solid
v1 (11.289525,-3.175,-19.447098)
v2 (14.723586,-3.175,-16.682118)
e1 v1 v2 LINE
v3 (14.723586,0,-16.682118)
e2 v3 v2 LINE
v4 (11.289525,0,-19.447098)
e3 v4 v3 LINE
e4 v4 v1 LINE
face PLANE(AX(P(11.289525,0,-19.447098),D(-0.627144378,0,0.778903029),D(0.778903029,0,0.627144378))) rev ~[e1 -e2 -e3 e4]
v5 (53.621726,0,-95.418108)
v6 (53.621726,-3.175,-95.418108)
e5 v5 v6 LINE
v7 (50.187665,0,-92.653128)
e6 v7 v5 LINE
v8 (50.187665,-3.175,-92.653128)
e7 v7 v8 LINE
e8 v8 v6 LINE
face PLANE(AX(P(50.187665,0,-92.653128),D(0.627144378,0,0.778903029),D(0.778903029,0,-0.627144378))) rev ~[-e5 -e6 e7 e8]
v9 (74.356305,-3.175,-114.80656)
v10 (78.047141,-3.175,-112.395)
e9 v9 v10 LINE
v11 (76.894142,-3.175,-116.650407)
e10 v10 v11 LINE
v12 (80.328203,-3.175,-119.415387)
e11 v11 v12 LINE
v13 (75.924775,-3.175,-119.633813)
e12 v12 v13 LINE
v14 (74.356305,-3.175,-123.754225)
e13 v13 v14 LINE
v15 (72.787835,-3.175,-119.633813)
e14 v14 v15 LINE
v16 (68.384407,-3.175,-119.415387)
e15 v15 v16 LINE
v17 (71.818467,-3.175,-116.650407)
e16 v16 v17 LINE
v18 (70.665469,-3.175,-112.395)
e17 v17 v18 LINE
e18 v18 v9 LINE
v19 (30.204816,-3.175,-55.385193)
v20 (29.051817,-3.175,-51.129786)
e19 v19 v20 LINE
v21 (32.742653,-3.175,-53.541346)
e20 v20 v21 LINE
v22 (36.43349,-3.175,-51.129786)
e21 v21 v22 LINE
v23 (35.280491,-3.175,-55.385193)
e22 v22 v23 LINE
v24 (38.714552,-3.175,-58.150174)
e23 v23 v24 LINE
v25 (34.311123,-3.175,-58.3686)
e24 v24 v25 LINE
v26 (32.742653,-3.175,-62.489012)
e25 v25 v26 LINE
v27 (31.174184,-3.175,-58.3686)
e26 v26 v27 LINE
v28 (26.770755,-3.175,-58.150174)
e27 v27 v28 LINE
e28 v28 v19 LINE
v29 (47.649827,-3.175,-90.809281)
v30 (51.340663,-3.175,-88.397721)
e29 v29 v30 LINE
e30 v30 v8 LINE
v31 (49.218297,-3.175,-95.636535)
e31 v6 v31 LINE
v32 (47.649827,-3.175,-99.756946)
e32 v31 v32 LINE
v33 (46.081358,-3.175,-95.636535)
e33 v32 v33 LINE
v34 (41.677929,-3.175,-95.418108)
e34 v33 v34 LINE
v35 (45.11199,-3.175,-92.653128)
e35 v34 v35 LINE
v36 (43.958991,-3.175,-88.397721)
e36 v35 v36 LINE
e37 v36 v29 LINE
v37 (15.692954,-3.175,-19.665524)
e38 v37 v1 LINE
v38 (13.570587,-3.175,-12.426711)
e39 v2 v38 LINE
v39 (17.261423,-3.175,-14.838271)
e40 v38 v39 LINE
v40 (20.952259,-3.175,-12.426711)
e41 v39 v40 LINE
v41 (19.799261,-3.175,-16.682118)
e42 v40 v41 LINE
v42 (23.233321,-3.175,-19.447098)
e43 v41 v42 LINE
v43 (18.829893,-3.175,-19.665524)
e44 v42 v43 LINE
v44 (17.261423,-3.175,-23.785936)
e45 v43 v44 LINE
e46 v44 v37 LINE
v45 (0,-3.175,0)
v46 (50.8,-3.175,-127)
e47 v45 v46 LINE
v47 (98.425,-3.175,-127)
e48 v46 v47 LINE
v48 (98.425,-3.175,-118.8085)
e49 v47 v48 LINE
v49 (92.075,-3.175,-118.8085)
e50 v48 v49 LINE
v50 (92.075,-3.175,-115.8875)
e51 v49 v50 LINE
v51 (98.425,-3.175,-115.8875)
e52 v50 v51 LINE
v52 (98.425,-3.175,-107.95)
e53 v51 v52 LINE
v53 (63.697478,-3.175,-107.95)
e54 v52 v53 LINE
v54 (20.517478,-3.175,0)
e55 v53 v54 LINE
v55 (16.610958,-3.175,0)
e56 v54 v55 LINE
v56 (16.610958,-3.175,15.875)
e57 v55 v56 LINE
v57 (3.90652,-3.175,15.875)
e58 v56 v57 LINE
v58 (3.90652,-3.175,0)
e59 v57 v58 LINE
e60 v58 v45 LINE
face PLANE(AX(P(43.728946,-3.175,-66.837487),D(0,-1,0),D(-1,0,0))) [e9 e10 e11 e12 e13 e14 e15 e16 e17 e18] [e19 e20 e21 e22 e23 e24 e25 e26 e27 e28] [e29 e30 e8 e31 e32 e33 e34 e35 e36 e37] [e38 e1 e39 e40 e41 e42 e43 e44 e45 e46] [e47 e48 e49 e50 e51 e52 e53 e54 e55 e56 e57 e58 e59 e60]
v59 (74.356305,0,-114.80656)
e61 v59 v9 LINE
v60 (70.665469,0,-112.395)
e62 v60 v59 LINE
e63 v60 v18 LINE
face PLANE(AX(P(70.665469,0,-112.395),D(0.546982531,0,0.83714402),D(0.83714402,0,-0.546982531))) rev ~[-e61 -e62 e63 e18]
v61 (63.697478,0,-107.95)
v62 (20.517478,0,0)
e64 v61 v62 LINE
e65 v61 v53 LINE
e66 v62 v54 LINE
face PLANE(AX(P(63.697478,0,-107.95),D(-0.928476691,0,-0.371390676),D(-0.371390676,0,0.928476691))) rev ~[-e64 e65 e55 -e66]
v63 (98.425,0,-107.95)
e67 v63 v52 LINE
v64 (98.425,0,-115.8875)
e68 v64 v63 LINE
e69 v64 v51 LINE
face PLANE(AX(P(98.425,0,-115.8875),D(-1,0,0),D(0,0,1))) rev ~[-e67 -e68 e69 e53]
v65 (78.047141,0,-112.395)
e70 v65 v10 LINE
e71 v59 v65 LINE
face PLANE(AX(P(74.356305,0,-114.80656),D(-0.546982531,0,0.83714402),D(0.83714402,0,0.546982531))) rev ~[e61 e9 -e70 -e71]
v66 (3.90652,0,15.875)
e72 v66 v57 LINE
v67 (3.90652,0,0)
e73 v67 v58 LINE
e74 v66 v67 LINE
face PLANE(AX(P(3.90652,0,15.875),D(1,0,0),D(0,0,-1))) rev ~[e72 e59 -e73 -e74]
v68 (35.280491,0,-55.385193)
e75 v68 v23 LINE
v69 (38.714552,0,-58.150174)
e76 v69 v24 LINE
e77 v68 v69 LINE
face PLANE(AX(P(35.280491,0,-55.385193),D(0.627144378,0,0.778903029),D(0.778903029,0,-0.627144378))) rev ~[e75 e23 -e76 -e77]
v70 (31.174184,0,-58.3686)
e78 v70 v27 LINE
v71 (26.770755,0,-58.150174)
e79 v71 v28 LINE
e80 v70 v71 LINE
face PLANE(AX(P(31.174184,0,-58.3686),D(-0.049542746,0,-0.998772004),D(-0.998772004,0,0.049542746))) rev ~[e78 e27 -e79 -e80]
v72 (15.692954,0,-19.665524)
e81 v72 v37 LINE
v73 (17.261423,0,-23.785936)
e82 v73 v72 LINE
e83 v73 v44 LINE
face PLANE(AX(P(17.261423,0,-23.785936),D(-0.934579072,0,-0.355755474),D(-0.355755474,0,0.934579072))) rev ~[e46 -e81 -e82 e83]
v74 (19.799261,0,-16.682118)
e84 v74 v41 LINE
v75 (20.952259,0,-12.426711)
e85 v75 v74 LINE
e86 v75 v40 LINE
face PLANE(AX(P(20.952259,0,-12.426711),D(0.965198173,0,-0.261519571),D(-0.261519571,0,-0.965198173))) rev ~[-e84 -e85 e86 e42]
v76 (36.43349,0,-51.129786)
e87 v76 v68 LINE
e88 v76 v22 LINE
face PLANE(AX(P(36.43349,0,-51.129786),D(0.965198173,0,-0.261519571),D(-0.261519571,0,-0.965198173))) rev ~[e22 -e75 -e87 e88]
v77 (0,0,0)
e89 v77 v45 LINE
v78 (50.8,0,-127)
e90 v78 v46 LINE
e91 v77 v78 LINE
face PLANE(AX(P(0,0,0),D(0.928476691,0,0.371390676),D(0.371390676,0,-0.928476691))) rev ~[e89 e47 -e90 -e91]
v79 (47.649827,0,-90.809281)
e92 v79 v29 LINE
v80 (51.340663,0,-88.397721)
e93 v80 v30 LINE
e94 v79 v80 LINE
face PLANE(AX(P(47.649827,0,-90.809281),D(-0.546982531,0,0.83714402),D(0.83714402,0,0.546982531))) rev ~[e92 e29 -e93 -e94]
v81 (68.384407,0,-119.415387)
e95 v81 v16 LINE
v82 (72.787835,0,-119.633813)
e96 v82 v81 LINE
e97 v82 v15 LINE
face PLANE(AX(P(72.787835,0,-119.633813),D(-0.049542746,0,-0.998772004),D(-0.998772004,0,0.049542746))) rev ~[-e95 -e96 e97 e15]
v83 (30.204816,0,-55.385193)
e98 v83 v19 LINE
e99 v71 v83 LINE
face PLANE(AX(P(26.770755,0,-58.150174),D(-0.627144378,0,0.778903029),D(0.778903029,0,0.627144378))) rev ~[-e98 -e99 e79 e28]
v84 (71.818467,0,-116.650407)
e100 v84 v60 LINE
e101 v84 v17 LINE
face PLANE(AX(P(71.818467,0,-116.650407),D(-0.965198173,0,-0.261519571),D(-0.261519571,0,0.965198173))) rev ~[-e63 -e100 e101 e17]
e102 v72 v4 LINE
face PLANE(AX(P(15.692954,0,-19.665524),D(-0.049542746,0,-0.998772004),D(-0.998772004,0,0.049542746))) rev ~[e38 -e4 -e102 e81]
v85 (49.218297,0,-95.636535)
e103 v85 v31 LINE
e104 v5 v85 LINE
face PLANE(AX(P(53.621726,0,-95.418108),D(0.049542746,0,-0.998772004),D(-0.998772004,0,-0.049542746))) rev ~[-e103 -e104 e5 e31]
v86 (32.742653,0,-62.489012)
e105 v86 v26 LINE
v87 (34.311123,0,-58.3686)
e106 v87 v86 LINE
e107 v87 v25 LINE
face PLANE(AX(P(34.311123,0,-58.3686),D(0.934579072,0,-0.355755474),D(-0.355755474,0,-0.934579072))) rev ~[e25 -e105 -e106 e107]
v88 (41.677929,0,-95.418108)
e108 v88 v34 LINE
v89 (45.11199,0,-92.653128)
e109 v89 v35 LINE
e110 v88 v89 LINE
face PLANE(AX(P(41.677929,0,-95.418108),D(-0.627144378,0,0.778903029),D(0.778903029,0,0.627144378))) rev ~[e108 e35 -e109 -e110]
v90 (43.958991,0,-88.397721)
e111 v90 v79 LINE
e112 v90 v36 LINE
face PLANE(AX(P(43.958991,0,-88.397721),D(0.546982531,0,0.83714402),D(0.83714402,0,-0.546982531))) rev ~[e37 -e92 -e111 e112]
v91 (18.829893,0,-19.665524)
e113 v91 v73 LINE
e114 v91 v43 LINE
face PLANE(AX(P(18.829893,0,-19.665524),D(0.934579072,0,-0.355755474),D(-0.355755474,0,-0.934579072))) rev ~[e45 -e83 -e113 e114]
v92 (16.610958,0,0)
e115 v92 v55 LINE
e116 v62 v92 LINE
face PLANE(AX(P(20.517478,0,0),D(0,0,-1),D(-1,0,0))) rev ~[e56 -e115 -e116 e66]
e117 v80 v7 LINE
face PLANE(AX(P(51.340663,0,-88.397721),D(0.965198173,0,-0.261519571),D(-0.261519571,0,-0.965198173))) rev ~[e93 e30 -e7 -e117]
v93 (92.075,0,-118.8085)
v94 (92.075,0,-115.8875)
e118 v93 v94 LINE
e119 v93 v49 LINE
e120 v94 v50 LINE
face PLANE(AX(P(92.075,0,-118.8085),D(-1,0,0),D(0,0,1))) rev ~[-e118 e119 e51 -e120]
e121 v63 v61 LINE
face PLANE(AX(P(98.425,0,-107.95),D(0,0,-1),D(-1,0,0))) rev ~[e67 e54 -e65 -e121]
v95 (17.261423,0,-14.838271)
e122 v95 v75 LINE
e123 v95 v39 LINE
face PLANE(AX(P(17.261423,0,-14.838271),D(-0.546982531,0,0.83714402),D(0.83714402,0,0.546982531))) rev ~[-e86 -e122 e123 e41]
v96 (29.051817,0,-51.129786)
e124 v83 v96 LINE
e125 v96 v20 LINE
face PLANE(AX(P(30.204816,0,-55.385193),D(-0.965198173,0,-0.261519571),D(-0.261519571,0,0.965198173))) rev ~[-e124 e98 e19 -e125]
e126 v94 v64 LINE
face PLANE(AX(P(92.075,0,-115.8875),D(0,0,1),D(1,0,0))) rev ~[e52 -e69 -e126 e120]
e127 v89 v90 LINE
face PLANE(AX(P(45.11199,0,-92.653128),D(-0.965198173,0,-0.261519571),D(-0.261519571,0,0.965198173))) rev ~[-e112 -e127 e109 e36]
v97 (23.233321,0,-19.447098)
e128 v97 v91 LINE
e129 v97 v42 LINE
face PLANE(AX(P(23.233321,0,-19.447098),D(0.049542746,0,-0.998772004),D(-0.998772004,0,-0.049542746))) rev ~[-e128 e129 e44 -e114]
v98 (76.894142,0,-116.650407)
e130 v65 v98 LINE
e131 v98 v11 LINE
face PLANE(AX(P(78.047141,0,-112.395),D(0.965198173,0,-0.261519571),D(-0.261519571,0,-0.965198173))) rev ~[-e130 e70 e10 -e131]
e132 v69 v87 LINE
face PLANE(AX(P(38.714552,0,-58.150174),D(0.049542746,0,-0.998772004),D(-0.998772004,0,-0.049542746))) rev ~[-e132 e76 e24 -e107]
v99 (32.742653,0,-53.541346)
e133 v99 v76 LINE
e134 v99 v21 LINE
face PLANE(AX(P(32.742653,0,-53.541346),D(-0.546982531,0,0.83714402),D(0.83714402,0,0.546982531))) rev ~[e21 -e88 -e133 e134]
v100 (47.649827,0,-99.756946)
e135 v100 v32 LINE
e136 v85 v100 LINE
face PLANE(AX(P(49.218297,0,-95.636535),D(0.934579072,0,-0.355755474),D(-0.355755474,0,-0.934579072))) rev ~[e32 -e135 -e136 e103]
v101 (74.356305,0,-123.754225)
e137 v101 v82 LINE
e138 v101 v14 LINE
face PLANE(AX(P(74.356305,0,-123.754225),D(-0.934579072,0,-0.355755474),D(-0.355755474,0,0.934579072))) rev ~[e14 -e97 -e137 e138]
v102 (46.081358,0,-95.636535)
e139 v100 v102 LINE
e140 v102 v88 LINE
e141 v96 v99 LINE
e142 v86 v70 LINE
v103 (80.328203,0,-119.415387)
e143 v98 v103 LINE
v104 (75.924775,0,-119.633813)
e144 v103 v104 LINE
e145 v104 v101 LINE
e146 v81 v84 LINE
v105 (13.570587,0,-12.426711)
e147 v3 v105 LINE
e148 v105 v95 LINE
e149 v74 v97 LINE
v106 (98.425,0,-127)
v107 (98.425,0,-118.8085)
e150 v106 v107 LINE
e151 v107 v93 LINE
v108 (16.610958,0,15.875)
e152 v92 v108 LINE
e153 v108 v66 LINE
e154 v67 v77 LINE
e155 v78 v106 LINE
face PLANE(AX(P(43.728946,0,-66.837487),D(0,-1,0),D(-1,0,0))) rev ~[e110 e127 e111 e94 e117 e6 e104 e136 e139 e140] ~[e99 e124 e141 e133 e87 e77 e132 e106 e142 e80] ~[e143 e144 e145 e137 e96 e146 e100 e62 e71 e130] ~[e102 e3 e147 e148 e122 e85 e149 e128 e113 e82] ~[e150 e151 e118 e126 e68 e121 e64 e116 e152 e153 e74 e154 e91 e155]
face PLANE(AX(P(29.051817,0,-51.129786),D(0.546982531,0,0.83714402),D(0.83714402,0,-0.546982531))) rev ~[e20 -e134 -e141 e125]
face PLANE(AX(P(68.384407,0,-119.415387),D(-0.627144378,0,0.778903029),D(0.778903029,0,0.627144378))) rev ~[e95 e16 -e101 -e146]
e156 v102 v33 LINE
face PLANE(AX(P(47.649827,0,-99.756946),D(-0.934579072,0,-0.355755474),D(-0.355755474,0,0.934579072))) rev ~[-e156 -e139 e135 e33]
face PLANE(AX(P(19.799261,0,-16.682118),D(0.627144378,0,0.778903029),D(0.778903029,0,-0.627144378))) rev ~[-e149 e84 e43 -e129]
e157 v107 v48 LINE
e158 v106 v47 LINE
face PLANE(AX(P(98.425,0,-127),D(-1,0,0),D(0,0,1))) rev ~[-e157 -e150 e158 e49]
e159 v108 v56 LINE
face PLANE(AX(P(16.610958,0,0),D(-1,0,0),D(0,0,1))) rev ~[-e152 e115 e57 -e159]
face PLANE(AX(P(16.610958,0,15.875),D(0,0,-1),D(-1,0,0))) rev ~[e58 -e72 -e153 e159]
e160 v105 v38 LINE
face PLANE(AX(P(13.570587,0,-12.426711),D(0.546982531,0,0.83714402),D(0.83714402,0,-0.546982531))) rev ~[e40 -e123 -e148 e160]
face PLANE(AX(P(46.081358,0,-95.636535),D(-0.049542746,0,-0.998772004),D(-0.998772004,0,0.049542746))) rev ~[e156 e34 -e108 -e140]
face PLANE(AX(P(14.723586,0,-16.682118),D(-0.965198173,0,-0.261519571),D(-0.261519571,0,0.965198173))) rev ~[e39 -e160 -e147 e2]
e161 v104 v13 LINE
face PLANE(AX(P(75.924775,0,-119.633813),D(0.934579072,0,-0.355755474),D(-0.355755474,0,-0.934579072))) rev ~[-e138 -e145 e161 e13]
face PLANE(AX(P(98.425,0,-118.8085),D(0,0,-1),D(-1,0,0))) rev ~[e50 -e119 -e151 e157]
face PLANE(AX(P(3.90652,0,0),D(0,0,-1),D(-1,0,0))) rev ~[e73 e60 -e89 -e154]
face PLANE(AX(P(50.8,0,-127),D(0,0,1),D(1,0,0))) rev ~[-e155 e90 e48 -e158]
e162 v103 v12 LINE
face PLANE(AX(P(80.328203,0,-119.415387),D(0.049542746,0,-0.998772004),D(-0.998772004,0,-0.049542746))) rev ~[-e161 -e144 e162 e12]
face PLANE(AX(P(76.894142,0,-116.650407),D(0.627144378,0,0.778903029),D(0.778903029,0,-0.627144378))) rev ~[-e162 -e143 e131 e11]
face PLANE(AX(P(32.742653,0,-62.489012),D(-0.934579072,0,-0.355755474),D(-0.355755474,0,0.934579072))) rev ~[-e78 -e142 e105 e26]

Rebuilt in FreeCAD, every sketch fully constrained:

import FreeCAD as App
import Part
import Sketcher
Q = App.Units.Quantity


def add_polygon(sketch, points):
    """Adds a closed chain of lines whose ends are joined by coincident constraints."""
    first, n = sketch.GeometryCount, len(points)
    for a, b in zip(points, points[1:] + points[:1]):
        sketch.addGeometry(Part.LineSegment(App.Vector(*a, 0), App.Vector(*b, 0)), False)
    for i in range(n):
        sketch.addConstraint(Sketcher.Constraint("Coincident", first + i, 2, first + (i + 1) % n, 1))

doc = App.newDocument("Part")
body = doc.addObject("PartDesign::Body", "Body")

sketch1 = body.newObject("Sketcher::SketchObject", "Sketch")
sketch1.AttachmentSupport = (doc.getObject("XZ_Plane"), [""])
sketch1.MapMode = "FlatFace"
add_polygon(sketch1, [(98.4, -118.8), (98.4, -127), (50.8, -127), (0, 0), (3.9, 0), (3.9, 15.9), (16.6, 15.9), (16.6, 0), (20.5, 0), (63.7, -108), (98.4, -108), (98.4, -115.9), (92.1, -115.9), (92.1, -118.8)])
add_polygon(sketch1, [(17.3, -23.8), (18.8, -19.7), (23.2, -19.4), (19.8, -16.7), (21, -12.4), (17.3, -14.8), (13.6, -12.4), (14.7, -16.7), (11.3, -19.4), (15.7, -19.7)])
add_polygon(sketch1, [(32.7, -62.5), (34.3, -58.4), (38.7, -58.2), (35.3, -55.4), (36.4, -51.1), (32.7, -53.5), (29.1, -51.1), (30.2, -55.4), (26.8, -58.2), (31.2, -58.4)])
add_polygon(sketch1, [(47.6, -99.8), (49.2, -95.6), (53.6, -95.4), (50.2, -92.7), (51.3, -88.4), (47.6, -90.8), (44, -88.4), (45.1, -92.7), (41.7, -95.4), (46.1, -95.6)])
add_polygon(sketch1, [(74.4, -123.8), (75.9, -119.6), (80.3, -119.4), (76.9, -116.7), (78, -112.4), (74.4, -114.8), (70.7, -112.4), (71.8, -116.7), (68.4, -119.4), (72.8, -119.6)])
sketch1.addConstraint(Sketcher.Constraint("Vertical", 0))
sketch1.addConstraint(Sketcher.Constraint("Horizontal", 1))
sketch1.addConstraint(Sketcher.Constraint("Horizontal", 3))
sketch1.addConstraint(Sketcher.Constraint("Vertical", 4))
sketch1.addConstraint(Sketcher.Constraint("Horizontal", 5))
sketch1.addConstraint(Sketcher.Constraint("Vertical", 6))
sketch1.addConstraint(Sketcher.Constraint("Horizontal", 7))
sketch1.addConstraint(Sketcher.Constraint("Horizontal", 9))
sketch1.addConstraint(Sketcher.Constraint("Vertical", 10))
sketch1.addConstraint(Sketcher.Constraint("Horizontal", 11))
sketch1.addConstraint(Sketcher.Constraint("Vertical", 12))
sketch1.addConstraint(Sketcher.Constraint("Horizontal", 13))
sketch1.addConstraint(Sketcher.Constraint("Coincident", 2, 2, -1, 1))
sketch1.addConstraint(Sketcher.Constraint("PointOnObject", 6, 2, -1))
sketch1.addConstraint(Sketcher.Constraint("Parallel", 2, 8))
sketch1.addConstraint(Sketcher.Constraint("Parallel", 14, 24))
sketch1.addConstraint(Sketcher.Constraint("Parallel", 15, 25))
sketch1.addConstraint(Sketcher.Constraint("Parallel", 16, 26))
sketch1.addConstraint(Sketcher.Constraint("Parallel", 17, 27))
sketch1.addConstraint(Sketcher.Constraint("Parallel", 18, 28))
sketch1.addConstraint(Sketcher.Constraint("Parallel", 19, 29))
sketch1.addConstraint(Sketcher.Constraint("Parallel", 20, 30))
sketch1.addConstraint(Sketcher.Constraint("Parallel", 21, 31))
sketch1.addConstraint(Sketcher.Constraint("Parallel", 22, 32))
sketch1.addConstraint(Sketcher.Constraint("Parallel", 23, 33))
sketch1.addConstraint(Sketcher.Constraint("Parallel", 24, 34))
sketch1.addConstraint(Sketcher.Constraint("Parallel", 25, 35))
sketch1.addConstraint(Sketcher.Constraint("Parallel", 26, 36))
sketch1.addConstraint(Sketcher.Constraint("Parallel", 27, 37))
sketch1.addConstraint(Sketcher.Constraint("Parallel", 28, 38))
sketch1.addConstraint(Sketcher.Constraint("Parallel", 29, 39))
sketch1.addConstraint(Sketcher.Constraint("Parallel", 30, 40))
sketch1.addConstraint(Sketcher.Constraint("Parallel", 31, 41))
sketch1.addConstraint(Sketcher.Constraint("Parallel", 32, 42))
sketch1.addConstraint(Sketcher.Constraint("Parallel", 33, 43))
sketch1.addConstraint(Sketcher.Constraint("Parallel", 34, 44))
sketch1.addConstraint(Sketcher.Constraint("Parallel", 35, 45))
sketch1.addConstraint(Sketcher.Constraint("Parallel", 36, 46))
sketch1.addConstraint(Sketcher.Constraint("Parallel", 37, 47))
sketch1.addConstraint(Sketcher.Constraint("Parallel", 38, 48))
sketch1.addConstraint(Sketcher.Constraint("Parallel", 39, 49))
sketch1.addConstraint(Sketcher.Constraint("Parallel", 40, 50))
sketch1.addConstraint(Sketcher.Constraint("Parallel", 41, 51))
sketch1.addConstraint(Sketcher.Constraint("Parallel", 42, 52))
sketch1.addConstraint(Sketcher.Constraint("Parallel", 43, 53))
sketch1.addConstraint(Sketcher.Constraint("Horizontal", 17, 2, 19, 2))
sketch1.addConstraint(Sketcher.Constraint("Horizontal", 16, 2, 20, 2))
sketch1.addConstraint(Sketcher.Constraint("Horizontal", 15, 2, 21, 2))
sketch1.addConstraint(Sketcher.Constraint("Horizontal", 14, 2, 22, 2))
sketch1.addConstraint(Sketcher.Constraint("Horizontal", 27, 2, 29, 2))
sketch1.addConstraint(Sketcher.Constraint("Horizontal", 26, 2, 30, 2))
sketch1.addConstraint(Sketcher.Constraint("Horizontal", 25, 2, 31, 2))
sketch1.addConstraint(Sketcher.Constraint("Horizontal", 24, 2, 32, 2))
sketch1.addConstraint(Sketcher.Constraint("Horizontal", 37, 2, 39, 2))
sketch1.addConstraint(Sketcher.Constraint("Horizontal", 36, 2, 40, 2))
sketch1.addConstraint(Sketcher.Constraint("Horizontal", 35, 2, 41, 2))
sketch1.addConstraint(Sketcher.Constraint("Horizontal", 34, 2, 42, 2))
sketch1.addConstraint(Sketcher.Constraint("Horizontal", 47, 2, 49, 2))
sketch1.addConstraint(Sketcher.Constraint("Horizontal", 46, 2, 50, 2))
sketch1.addConstraint(Sketcher.Constraint("Horizontal", 45, 2, 51, 2))
sketch1.addConstraint(Sketcher.Constraint("Horizontal", 44, 2, 52, 2))
sketch1.addConstraint(Sketcher.Constraint("Vertical", 0, 2, 9, 2))
sketch1.addConstraint(Sketcher.Constraint("Vertical", 18, 2, 23, 2))
sketch1.addConstraint(Sketcher.Constraint("Equal", 3, 7))
sketch1.addConstraint(Sketcher.Constraint("Equal", 14, 15))
sketch1.addConstraint(Sketcher.Constraint("Equal", 15, 16))
sketch1.addConstraint(Sketcher.Constraint("Equal", 16, 17))
sketch1.addConstraint(Sketcher.Constraint("Equal", 17, 18))
sketch1.addConstraint(Sketcher.Constraint("Equal", 18, 19))
sketch1.addConstraint(Sketcher.Constraint("Equal", 19, 20))
sketch1.addConstraint(Sketcher.Constraint("Equal", 20, 21))
sketch1.addConstraint(Sketcher.Constraint("Equal", 21, 22))
sketch1.addConstraint(Sketcher.Constraint("Equal", 23, 24))
sketch1.addConstraint(Sketcher.Constraint("Equal", 24, 25))
sketch1.addConstraint(Sketcher.Constraint("Equal", 25, 26))
sketch1.addConstraint(Sketcher.Constraint("Equal", 26, 27))
sketch1.addConstraint(Sketcher.Constraint("Equal", 33, 34))
sketch1.addConstraint(Sketcher.Constraint("Equal", 34, 35))
sketch1.addConstraint(Sketcher.Constraint("Equal", 35, 36))
sketch1.addConstraint(Sketcher.Constraint("Equal", 36, 37))
sketch1.addConstraint(Sketcher.Constraint("Equal", 43, 44))
sketch1.addConstraint(Sketcher.Constraint("Equal", 44, 45))
sketch1.addConstraint(Sketcher.Constraint("Equal", 45, 46))
sketch1.addConstraint(Sketcher.Constraint("Equal", 46, 47))
sketch1.addConstraint(Sketcher.Constraint("DistanceY", 0, 2, -1, 1, Q("5 in")))
sketch1.addConstraint(Sketcher.Constraint("DistanceX", -1, 1, 1, 2, Q("2 in")))
sketch1.addConstraint(Sketcher.Constraint("DistanceX", 11, 2, 11, 1, Q("0.25 in")))
sketch1.addConstraint(Sketcher.Constraint("DistanceX", 7, 2, 8, 2, Q("1.7 in")))
sketch1.addConstraint(Sketcher.Constraint("DistanceX", 1, 2, 1, 1, Q("1.875 in")))
sketch1.addConstraint(Sketcher.Constraint("DistanceY", 4, 1, 4, 2, Q("0.625 in")))
sketch1.addConstraint(Sketcher.Constraint("DistanceY", 10, 2, 10, 1, Q("0.3125 in")))
sketch1.addConstraint(Sketcher.Constraint("DistanceY", 12, 2, 12, 1, Q("0.115 in")))
sketch1.addConstraint(Sketcher.Constraint("DistanceX", 3, 1, 3, 2, Q("0.1538 in")))
sketch1.addConstraint(Sketcher.Constraint("DistanceY", 47, 2, -1, 1, Q("4.425 in")))
sketch1.addConstraint(Sketcher.Constraint("DistanceY", 24, 2, 16, 2, Q("1.6412001 in")))
sketch1.addConstraint(Sketcher.Constraint("DistanceY", 15, 2, -1, 1, 19.447098))
sketch1.addConstraint(Sketcher.Constraint("DistanceY", 24, 2, -1, 1, 58.3686))
sketch1.addConstraint(Sketcher.Constraint("DistanceX", 3, 2, 15, 2, 19.326801))
sketch1.addConstraint(Sketcher.Constraint("DistanceX", 16, 2, 17, 2, 1.152999))
sketch1.addConstraint(Sketcher.Constraint("DistanceX", 6, 2, 17, 2, 4.341301))
sketch1.addConstraint(Sketcher.Constraint("DistanceX", 18, 2, 15, 2, 5.971898))
sketch1.addConstraint(Sketcher.Constraint("DistanceX", 23, 2, 24, 2, 17.0497))
sketch1.addConstraint(Sketcher.Constraint("DistanceX", 5, 1, 5, 2, 12.704438))
sketch1.addConstraint(Sketcher.Constraint("DistanceX", -1, 1, 25, 2, 38.714552))
sketch1.addConstraint(Sketcher.Constraint("DistanceY", 35, 2, -1, 1, 95.418108))
sketch1.addConstraint(Sketcher.Constraint("DistanceX", -1, 1, 39, 2, 43.958991))
sketch1.addConstraint(Sketcher.Constraint("DistanceX", -1, 1, 47, 2, 78.047141))
pad1 = body.newObject("PartDesign::Pad", "Pad")
pad1.Profile = sketch1
pad1.Length = Q("0.125 in")

doc.recompute()
